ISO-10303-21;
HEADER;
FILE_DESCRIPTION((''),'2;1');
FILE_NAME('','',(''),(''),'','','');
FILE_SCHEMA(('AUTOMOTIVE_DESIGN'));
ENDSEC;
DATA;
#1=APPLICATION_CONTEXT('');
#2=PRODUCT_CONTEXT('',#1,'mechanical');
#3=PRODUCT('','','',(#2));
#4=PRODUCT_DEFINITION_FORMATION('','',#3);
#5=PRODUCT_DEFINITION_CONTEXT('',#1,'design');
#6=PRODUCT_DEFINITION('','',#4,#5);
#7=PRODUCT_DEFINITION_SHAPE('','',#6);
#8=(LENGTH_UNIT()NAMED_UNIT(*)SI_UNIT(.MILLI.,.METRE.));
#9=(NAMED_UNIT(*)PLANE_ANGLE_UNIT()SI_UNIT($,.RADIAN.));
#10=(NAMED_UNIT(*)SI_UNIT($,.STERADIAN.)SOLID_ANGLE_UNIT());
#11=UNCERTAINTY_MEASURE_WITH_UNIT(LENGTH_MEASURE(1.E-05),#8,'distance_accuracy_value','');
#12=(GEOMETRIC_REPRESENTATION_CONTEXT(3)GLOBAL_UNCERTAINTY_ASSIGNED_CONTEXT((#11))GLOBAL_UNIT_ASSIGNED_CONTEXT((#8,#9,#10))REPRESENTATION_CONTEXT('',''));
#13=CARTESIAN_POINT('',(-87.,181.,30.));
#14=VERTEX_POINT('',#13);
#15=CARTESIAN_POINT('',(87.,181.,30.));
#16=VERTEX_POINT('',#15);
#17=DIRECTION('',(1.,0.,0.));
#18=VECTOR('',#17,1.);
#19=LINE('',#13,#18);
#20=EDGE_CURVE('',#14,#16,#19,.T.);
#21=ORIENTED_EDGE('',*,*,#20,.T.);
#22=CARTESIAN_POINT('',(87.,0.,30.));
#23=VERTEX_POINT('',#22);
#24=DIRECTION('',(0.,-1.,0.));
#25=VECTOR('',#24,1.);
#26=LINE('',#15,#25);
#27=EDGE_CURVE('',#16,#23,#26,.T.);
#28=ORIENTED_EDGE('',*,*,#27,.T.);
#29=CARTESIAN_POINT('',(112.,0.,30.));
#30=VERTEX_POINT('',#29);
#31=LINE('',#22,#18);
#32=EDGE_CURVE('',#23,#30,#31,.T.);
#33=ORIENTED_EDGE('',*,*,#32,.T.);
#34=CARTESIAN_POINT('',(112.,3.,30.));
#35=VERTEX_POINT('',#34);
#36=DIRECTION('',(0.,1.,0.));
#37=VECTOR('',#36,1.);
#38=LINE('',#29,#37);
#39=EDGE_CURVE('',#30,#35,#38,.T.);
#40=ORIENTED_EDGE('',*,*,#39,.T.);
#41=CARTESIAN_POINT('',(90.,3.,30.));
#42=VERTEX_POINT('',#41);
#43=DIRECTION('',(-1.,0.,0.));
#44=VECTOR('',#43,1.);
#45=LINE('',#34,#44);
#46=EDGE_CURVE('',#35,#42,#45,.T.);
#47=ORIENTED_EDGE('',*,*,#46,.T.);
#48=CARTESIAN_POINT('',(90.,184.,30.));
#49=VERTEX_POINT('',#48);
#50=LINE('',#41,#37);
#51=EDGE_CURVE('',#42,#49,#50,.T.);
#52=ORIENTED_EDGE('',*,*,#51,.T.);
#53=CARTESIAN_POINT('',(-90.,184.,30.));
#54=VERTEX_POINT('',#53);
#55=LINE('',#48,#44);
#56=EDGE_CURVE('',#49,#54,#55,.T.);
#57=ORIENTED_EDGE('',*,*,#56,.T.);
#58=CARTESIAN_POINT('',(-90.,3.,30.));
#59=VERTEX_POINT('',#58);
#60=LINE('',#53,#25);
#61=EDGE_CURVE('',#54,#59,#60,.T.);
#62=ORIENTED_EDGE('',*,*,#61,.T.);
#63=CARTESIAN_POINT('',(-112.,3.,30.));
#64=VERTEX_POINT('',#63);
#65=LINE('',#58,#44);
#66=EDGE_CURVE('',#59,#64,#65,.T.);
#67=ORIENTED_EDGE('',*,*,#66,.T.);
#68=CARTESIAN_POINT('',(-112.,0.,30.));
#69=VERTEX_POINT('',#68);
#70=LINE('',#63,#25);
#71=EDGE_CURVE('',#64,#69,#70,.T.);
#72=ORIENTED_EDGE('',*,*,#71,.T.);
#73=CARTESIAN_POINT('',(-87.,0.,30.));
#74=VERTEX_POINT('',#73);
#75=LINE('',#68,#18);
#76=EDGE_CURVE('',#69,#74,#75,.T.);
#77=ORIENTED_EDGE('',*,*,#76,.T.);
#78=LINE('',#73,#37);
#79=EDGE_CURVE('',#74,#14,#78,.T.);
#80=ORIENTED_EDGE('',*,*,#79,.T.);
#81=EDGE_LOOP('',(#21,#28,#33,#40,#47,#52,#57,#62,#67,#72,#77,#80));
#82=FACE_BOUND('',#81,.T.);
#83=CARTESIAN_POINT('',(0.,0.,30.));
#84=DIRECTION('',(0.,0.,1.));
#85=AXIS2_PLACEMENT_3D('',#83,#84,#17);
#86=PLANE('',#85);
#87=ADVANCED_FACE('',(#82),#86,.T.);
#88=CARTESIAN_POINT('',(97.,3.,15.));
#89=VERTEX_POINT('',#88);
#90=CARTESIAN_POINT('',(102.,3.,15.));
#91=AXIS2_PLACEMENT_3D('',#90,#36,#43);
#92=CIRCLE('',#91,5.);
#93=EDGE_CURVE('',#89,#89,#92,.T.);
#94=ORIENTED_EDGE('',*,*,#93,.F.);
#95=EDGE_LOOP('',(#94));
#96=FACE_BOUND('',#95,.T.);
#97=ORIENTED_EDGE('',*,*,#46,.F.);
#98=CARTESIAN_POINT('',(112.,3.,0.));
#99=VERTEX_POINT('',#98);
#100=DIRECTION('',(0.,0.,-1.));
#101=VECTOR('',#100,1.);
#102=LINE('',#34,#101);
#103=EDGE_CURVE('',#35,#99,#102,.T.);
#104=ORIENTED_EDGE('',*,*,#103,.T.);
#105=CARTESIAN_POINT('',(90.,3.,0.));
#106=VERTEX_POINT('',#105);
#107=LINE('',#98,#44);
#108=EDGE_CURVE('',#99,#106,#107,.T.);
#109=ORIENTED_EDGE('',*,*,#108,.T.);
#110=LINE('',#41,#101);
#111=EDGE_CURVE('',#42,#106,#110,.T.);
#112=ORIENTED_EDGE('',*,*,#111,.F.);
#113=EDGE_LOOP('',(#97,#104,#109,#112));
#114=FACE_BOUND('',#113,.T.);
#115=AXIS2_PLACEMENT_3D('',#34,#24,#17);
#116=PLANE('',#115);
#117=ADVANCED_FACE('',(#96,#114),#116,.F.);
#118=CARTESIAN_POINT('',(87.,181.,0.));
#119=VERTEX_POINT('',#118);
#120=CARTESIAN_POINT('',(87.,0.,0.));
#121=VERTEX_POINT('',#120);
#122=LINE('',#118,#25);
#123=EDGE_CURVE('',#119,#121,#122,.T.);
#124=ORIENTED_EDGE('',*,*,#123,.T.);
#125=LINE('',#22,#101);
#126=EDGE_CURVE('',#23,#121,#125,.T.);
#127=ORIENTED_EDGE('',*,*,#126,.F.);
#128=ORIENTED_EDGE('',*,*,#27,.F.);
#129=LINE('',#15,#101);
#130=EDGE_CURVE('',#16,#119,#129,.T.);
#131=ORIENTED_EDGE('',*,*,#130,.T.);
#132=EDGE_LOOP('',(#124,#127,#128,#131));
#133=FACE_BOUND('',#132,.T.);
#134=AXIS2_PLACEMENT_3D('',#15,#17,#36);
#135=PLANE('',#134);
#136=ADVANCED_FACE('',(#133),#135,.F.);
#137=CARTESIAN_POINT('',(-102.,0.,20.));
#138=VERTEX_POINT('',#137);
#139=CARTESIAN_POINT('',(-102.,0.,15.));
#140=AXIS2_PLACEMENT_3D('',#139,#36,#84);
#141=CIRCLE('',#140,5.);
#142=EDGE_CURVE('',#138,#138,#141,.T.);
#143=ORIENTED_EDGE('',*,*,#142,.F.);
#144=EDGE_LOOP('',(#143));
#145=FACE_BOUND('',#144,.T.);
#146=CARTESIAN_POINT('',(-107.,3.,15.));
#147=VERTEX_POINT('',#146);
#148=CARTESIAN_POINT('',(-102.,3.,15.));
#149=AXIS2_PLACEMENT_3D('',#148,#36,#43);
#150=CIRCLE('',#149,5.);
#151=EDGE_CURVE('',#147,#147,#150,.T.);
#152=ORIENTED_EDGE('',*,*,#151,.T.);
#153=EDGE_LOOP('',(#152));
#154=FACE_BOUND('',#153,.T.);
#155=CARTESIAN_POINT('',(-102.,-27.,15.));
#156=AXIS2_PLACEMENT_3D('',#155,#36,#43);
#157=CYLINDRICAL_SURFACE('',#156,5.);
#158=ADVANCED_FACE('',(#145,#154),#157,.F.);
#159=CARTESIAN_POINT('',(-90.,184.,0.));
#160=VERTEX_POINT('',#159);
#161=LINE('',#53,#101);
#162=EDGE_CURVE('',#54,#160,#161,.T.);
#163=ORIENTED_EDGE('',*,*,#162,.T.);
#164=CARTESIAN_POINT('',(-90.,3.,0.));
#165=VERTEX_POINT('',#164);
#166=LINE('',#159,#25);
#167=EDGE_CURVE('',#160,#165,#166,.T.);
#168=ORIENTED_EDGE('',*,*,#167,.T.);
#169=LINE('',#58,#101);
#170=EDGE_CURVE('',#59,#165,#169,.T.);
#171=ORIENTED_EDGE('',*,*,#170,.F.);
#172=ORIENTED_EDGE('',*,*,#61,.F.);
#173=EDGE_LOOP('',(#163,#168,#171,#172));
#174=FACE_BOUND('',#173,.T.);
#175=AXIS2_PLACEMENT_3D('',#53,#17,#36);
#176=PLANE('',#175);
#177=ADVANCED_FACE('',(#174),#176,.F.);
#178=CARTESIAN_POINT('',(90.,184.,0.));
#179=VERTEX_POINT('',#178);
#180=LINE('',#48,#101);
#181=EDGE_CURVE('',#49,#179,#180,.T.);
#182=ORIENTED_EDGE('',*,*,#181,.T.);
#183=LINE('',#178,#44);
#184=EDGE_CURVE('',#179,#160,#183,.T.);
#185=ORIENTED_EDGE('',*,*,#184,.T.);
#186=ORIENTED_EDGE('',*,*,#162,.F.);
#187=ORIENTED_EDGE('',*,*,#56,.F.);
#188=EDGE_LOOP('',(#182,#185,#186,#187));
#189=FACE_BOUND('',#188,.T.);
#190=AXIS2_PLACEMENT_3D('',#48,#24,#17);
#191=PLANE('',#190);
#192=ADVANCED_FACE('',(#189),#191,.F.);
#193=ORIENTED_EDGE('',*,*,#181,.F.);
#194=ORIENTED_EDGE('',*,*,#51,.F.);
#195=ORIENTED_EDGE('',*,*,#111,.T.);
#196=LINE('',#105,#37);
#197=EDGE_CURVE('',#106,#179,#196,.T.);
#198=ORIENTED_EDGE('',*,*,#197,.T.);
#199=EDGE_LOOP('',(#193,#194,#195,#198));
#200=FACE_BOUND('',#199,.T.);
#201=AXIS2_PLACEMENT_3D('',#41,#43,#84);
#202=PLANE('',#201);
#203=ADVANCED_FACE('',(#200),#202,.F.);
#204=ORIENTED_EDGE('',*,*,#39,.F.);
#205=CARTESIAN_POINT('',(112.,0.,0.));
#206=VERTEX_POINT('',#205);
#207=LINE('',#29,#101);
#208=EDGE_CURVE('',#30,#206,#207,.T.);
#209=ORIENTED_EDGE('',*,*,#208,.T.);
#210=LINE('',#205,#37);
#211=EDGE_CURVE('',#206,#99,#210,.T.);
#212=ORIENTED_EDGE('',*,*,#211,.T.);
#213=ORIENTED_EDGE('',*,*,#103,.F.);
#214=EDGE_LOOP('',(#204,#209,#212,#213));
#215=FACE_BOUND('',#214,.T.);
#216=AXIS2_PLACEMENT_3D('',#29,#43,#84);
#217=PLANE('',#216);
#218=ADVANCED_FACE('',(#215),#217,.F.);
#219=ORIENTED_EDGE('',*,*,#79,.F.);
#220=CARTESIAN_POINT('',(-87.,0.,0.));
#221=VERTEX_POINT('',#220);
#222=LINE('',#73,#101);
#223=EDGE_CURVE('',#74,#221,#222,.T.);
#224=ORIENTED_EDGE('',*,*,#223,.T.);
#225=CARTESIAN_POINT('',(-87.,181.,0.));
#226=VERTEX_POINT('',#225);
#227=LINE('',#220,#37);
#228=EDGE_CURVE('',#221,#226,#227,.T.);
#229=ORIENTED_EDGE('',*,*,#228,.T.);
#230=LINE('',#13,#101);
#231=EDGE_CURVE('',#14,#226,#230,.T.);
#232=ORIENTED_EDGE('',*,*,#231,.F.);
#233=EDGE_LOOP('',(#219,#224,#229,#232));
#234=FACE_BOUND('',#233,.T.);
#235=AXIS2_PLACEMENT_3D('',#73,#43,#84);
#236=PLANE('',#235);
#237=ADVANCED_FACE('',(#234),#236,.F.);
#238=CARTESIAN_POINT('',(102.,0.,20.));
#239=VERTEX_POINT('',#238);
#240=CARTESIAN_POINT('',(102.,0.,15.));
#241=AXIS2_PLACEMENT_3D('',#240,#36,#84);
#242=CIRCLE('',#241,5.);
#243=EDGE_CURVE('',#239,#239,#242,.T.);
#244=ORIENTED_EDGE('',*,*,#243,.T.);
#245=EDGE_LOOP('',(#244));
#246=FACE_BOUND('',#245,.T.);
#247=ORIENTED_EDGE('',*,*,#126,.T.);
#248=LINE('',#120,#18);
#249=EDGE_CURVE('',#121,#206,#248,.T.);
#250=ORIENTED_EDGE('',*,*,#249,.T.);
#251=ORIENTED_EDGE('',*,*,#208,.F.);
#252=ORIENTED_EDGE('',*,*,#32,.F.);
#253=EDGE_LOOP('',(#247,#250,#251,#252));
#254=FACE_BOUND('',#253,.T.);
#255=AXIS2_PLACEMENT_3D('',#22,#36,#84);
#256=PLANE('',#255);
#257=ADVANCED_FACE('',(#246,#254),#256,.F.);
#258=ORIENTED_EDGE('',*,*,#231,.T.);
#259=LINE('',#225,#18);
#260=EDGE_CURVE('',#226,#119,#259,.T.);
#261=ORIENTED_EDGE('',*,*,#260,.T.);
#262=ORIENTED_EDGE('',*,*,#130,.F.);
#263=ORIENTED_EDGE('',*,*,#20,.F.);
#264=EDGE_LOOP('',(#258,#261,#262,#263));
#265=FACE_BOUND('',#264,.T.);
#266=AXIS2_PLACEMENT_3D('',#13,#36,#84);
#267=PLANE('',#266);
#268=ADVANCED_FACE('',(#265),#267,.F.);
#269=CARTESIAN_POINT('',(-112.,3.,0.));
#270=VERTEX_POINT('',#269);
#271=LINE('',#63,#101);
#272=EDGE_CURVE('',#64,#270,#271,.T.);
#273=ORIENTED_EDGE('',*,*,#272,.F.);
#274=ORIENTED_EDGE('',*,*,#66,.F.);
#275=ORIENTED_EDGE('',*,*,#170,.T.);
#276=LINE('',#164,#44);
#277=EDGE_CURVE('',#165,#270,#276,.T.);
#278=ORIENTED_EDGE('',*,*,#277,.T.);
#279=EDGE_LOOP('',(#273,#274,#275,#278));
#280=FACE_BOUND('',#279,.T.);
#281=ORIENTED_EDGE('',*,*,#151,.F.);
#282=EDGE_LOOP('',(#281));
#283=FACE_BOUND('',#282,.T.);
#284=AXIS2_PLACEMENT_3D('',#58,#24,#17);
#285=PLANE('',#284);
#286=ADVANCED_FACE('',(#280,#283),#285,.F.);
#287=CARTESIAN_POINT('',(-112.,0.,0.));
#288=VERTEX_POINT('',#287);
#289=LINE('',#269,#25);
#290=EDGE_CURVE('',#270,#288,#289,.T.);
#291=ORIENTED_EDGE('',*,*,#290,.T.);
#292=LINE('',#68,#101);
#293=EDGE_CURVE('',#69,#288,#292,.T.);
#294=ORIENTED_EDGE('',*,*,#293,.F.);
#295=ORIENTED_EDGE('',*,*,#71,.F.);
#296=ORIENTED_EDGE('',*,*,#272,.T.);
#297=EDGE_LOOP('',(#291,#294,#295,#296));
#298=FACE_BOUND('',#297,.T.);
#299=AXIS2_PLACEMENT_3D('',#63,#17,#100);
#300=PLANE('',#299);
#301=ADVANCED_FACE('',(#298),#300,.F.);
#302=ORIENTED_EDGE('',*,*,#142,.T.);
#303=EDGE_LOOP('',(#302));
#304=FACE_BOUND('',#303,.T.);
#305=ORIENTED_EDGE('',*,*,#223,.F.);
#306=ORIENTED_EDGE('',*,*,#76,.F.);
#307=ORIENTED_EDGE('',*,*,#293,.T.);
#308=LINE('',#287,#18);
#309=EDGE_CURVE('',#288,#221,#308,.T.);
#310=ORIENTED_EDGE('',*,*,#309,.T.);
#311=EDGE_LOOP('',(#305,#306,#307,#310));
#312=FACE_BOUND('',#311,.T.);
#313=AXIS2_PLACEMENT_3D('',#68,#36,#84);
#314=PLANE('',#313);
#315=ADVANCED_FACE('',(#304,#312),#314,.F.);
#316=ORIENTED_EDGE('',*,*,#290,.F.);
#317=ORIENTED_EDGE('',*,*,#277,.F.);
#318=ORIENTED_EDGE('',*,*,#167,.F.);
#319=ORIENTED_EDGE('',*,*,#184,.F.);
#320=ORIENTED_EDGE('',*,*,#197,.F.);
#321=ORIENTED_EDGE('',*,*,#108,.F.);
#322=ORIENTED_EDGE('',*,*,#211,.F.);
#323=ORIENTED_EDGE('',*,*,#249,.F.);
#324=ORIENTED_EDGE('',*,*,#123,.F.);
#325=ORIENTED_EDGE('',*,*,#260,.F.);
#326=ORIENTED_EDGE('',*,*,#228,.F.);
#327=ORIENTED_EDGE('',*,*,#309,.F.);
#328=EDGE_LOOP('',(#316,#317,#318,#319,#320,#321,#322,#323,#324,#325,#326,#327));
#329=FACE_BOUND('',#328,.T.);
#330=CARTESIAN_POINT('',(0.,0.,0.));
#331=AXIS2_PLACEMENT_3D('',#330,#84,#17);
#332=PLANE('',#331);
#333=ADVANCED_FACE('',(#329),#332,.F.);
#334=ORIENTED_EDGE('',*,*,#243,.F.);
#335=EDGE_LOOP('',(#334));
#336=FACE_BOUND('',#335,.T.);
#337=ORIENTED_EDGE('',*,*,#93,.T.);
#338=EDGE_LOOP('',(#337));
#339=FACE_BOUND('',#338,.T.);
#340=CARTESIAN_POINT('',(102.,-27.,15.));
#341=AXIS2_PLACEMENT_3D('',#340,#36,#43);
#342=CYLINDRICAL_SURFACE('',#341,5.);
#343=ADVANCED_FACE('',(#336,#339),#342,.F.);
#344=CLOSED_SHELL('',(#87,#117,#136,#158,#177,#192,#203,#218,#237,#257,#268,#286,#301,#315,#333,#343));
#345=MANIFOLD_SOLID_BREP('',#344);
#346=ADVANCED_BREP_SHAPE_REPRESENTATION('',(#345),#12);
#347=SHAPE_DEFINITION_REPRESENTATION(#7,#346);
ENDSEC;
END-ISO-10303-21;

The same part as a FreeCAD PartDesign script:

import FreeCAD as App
import Part
import Sketcher
from FreeCAD import Vector


def add_polygon(sketch, points):
    """Adds a closed chain of lines whose ends are joined by coincident constraints."""
    first, n = sketch.GeometryCount, len(points)
    for a, b in zip(points, points[1:] + points[:1]):
        sketch.addGeometry(Part.LineSegment(App.Vector(*a, 0), App.Vector(*b, 0)), False)
    for i in range(n):
        sketch.addConstraint(Sketcher.Constraint("Coincident", first + i, 2, first + (i + 1) % n, 1))

doc = App.newDocument("Part")
params = doc.addObject("Spreadsheet::Sheet", "Params")
for row, (alias, value) in enumerate([
    ("sketch1_width", "174 mm"),
    ("sketch1_width2", "25 mm"),
    ("sketch1_width3", "22 mm"),
    ("sketch1_height", "181 mm"),
    ("sketch1_height2", "3 mm"),
    ("pad1_length", "30 mm"),
    ("sketch2_diameter", "10 mm"),
    ("pocket1_length", "30 mm"),
], start=1):
    params.set(f"A{row}", alias)
    params.set(f"B{row}", "=" + value)
    params.setAlias(f"B{row}", alias)

body = doc.addObject("PartDesign::Body", "Body")

sketch1 = body.newObject("Sketcher::SketchObject", "Sketch")
sketch1.AttachmentSupport = (doc.getObject("XY_Plane"), [""])
sketch1.MapMode = "FlatFace"
add_polygon(sketch1, [(-87, 0), (-87, 181), (87, 181), (87, 0), (112, 0), (112, 3), (90, 3), (90, 184), (-90, 184), (-90, 3), (-112, 3), (-112, 0)])
sketch1.addConstraint(Sketcher.Constraint("Vertical", 0))
sketch1.addConstraint(Sketcher.Constraint("Horizontal", 1))
sketch1.addConstraint(Sketcher.Constraint("Vertical", 2))
sketch1.addConstraint(Sketcher.Constraint("Horizontal", 3))
sketch1.addConstraint(Sketcher.Constraint("Vertical", 4))
sketch1.addConstraint(Sketcher.Constraint("Horizontal", 5))
sketch1.addConstraint(Sketcher.Constraint("Vertical", 6))
sketch1.addConstraint(Sketcher.Constraint("Horizontal", 7))
sketch1.addConstraint(Sketcher.Constraint("Vertical", 8))
sketch1.addConstraint(Sketcher.Constraint("Horizontal", 9))
sketch1.addConstraint(Sketcher.Constraint("Vertical", 10))
sketch1.addConstraint(Sketcher.Constraint("Horizontal", 11))
sketch1.addConstraint(Sketcher.Constraint("Symmetric", 3, 2, 10, 2, -1, 1))
sketch1.addConstraint(Sketcher.Constraint("Symmetric", 5, 2, 8, 2, -2))
sketch1.addConstraint(Sketcher.Constraint("Symmetric", 2, 2, 11, 2, -2))
sketch1.addConstraint(Sketcher.Constraint("Equal", 2, 6))
sketch1.addConstraint(Sketcher.Constraint("DistanceX", 1, 1, 1, 2, 174.0))
sketch1.addConstraint(Sketcher.Constraint("DistanceX", 3, 1, 3, 2, 25.0))
sketch1.addConstraint(Sketcher.Constraint("DistanceX", 5, 2, 5, 1, 22.0))
sketch1.addConstraint(Sketcher.Constraint("DistanceY", 0, 1, 0, 2, 181.0))
sketch1.addConstraint(Sketcher.Constraint("DistanceY", 4, 1, 4, 2, 3.0))
sketch1.setExpression("Constraints[28]", "Params.sketch1_width")
sketch1.setExpression("Constraints[29]", "Params.sketch1_width2")
sketch1.setExpression("Constraints[30]", "Params.sketch1_width3")
sketch1.setExpression("Constraints[31]", "Params.sketch1_height")
sketch1.setExpression("Constraints[32]", "Params.sketch1_height2")
pad1 = body.newObject("PartDesign::Pad", "Pad")
pad1.Profile = sketch1
pad1.setExpression("Length", "Params.pad1_length")

sketch2 = body.newObject("Sketcher::SketchObject", "Sketch001")
sketch2.AttachmentSupport = (doc.getObject("XZ_Plane"), [""])
sketch2.MapMode = "FlatFace"
sketch2.AttachmentOffset = App.Placement(Vector(0, 0, -3), App.Rotation())
sketch2.addGeometry(Part.Circle(Vector(-102, 15, 0), Vector(0, 0, 1), 5), False)
sketch2.addGeometry(Part.Circle(Vector(102, 15, 0), Vector(0, 0, 1), 5), False)
sketch2.addConstraint(Sketcher.Constraint("Equal", 0, 1))
sketch2.addConstraint(Sketcher.Constraint("Symmetric", 0, 3, 1, 3, -2))
sketch2.addConstraint(Sketcher.Constraint("Diameter", 0, 10.0))
sketch2.addConstraint(Sketcher.Constraint("DistanceX", 0, 3, -1, 1, 102.0))
sketch2.addConstraint(Sketcher.Constraint("DistanceY", -1, 1, 0, 3, 15.0))
sketch2.setExpression("Constraints[2]", "Params.sketch2_diameter")
pocket1 = body.newObject("PartDesign::Pocket", "Pocket")
pocket1.Profile = sketch2
pocket1.setExpression("Length", "Params.pocket1_length")
pocket1.Reversed = True

doc.recompute()
